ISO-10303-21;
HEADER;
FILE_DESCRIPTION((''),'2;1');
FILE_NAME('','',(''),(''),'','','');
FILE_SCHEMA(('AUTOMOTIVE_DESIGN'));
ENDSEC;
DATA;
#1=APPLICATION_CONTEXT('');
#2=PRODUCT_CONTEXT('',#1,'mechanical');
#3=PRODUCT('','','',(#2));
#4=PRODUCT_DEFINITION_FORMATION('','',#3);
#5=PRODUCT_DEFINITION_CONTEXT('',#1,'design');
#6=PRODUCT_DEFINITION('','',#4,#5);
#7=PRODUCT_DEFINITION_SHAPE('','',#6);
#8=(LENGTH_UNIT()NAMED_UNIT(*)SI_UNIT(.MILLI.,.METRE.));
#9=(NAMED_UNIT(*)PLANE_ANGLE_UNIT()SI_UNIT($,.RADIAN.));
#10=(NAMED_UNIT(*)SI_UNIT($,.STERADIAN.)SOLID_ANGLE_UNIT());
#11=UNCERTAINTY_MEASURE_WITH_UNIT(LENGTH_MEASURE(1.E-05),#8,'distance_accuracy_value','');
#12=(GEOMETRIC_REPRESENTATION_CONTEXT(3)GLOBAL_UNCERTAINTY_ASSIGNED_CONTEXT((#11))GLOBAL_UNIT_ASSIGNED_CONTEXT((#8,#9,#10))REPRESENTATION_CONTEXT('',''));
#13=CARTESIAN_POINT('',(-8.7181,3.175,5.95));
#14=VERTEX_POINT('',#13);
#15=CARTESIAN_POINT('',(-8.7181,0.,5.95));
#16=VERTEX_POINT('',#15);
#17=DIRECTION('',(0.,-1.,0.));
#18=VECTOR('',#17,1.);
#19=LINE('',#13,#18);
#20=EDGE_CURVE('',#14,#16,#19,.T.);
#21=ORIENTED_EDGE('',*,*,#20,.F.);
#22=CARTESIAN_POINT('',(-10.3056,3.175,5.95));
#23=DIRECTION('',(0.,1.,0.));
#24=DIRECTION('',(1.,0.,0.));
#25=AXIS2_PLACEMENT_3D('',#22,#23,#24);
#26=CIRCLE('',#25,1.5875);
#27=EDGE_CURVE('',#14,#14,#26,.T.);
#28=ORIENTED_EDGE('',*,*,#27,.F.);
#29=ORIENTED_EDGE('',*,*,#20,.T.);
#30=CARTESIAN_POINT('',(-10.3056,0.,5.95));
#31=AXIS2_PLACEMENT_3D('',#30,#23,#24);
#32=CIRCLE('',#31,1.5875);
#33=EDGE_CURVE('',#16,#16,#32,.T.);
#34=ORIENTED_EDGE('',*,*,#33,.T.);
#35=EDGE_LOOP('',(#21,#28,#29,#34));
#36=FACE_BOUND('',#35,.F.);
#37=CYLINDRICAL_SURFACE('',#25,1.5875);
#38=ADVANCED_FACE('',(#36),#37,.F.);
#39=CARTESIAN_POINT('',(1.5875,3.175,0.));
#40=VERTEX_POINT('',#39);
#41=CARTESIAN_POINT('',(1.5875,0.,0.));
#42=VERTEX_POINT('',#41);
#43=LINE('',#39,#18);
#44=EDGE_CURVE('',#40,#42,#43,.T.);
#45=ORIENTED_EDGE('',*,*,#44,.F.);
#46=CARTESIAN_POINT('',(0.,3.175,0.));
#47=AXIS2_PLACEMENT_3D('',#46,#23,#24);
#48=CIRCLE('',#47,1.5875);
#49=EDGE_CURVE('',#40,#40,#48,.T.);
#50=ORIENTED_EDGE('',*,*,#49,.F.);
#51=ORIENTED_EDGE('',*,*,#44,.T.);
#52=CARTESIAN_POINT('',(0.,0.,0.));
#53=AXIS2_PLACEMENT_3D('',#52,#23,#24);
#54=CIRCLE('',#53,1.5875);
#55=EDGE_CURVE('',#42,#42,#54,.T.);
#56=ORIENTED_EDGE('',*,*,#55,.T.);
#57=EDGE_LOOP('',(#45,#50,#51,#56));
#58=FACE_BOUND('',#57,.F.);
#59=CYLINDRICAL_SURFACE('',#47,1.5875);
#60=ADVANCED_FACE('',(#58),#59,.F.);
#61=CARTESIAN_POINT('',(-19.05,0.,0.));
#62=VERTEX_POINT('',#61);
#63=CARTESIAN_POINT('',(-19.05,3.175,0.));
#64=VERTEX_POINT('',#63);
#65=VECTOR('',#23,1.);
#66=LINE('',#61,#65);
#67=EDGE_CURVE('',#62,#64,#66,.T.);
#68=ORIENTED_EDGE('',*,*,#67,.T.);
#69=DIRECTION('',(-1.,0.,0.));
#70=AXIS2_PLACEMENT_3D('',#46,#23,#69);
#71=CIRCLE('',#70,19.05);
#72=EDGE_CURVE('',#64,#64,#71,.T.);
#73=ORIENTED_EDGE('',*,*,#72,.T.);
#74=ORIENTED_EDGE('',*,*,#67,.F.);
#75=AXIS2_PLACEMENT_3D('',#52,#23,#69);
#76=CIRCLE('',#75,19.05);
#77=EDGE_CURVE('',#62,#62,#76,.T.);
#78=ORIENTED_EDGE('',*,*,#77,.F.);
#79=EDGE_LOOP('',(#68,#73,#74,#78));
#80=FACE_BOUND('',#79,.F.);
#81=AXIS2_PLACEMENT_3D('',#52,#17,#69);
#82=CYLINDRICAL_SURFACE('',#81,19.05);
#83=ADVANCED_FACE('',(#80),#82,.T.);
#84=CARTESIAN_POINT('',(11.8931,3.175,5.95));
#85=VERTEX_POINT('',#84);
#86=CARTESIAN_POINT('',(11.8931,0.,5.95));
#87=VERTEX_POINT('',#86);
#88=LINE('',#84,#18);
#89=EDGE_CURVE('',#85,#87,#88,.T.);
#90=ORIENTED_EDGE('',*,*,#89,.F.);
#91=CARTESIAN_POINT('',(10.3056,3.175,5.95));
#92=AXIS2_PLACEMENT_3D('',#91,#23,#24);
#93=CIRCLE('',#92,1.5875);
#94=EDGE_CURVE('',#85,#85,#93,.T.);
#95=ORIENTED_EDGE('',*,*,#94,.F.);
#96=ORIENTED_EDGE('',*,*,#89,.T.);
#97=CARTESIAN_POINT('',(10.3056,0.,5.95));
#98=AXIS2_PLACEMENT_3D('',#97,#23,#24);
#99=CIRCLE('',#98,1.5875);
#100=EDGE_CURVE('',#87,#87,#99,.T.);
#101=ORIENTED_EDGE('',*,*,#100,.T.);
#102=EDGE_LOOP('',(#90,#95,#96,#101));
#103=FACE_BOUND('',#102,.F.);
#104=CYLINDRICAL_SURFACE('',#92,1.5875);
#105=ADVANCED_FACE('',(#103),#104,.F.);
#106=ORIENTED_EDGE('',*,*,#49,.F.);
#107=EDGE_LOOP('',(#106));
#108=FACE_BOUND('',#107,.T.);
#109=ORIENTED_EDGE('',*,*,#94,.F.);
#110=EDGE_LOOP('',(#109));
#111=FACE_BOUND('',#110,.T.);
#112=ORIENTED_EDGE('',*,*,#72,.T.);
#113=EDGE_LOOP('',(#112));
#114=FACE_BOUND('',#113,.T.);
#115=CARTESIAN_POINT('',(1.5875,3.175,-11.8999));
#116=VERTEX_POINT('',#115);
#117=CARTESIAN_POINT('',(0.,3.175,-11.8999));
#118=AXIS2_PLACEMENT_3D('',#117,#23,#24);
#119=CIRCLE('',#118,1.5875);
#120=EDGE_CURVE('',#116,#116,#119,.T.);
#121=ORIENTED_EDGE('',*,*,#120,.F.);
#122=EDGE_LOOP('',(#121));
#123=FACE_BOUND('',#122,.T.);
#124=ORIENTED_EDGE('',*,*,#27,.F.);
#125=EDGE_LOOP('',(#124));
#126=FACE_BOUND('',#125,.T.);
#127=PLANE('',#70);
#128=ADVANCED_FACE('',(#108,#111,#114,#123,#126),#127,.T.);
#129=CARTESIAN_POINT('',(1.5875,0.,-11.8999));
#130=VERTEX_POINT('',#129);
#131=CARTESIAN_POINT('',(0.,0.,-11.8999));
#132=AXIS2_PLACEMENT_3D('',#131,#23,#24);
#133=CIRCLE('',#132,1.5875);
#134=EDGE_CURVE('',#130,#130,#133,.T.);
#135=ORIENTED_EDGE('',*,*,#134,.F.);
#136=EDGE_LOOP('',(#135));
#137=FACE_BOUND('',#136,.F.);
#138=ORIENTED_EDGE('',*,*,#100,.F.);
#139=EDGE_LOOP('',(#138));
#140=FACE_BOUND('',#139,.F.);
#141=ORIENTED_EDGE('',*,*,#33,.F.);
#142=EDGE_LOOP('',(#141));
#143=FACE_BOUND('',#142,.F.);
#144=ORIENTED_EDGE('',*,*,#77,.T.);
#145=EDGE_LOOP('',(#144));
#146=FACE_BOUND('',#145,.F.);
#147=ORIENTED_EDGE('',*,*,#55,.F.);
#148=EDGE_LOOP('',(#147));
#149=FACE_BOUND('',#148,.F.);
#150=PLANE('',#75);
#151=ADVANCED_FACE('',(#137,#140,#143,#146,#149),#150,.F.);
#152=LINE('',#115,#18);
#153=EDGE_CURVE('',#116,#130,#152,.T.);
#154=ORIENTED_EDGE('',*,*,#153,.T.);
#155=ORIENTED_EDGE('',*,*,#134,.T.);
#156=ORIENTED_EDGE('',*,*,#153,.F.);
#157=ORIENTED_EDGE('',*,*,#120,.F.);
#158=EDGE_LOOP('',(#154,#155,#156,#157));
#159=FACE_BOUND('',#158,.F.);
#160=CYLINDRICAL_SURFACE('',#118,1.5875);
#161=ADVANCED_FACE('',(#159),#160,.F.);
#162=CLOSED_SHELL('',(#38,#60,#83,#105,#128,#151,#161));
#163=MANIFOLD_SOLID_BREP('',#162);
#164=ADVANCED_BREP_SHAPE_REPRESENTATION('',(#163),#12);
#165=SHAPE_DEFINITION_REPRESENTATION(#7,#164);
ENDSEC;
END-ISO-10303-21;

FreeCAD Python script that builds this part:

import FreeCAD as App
import Part
import Sketcher
Q = App.Units.Quantity

doc = App.newDocument("Part")
body = doc.addObject("PartDesign::Body", "Body")

sketch1 = doc.addObject("Sketcher::SketchObject", "Sketch")
body.addObject(sketch1)
sketch1.AttachmentSupport = (doc.XZ_Plane, [""])
sketch1.MapMode = "FlatFace"
sketch1.addGeometry(Part.Circle(App.Vector(0, 0, 0), App.Vector(0, 0, 1), 19), False)
sketch1.addConstraint([
    Sketcher.Constraint("Coincident", 0, 3, -1, 1),
    Sketcher.Constraint("Diameter", 0, Q("1.5 in")),
])
pad1 = doc.addObject("PartDesign::Pad", "Pad")
body.addObject(pad1)
pad1.Profile = sketch1
pad1.Length = Q("0.125 in")
pad1.Reversed = True

sketch2 = doc.addObject("Sketcher::SketchObject", "Sketch001")
body.addObject(sketch2)
sketch2.AttachmentSupport = (doc.XZ_Plane, [""])
sketch2.MapMode = "FlatFace"
sketch2.AttachmentOffset = App.Placement(App.Vector(0, 0, -0.125 * 25.4), App.Rotation())
sketch2.addGeometry([
    Part.Circle(App.Vector(0, 0, 0), App.Vector(0, 0, 1), 1.6),
    Part.Circle(App.Vector(-10.3, 6, 0), App.Vector(0, 0, 1), 1.6),
    Part.Circle(App.Vector(0, -11.9, 0), App.Vector(0, 0, 1), 1.6),
    Part.Circle(App.Vector(10.3, 6, 0), App.Vector(0, 0, 1), 1.6),
], False)
sketch2.addConstraint([
    Sketcher.Constraint("Coincident", 0, 3, -1, 1),
    Sketcher.Constraint("Equal", 0, 1),
    Sketcher.Constraint("Equal", 1, 2),
    Sketcher.Constraint("Equal", 2, 3),
    Sketcher.Constraint("Symmetric", 1, 3, 3, 3, -2),
    Sketcher.Constraint("PointOnObject", 2, 3, -2),
    Sketcher.Constraint("Diameter", 0, Q("0.125 in")),
    Sketcher.Constraint("DistanceY", 2, 3, -1, 1, Q("0.4685 in")),
    Sketcher.Constraint("DistanceX", 1, 3, -1, 1, 10.3056),
    Sketcher.Constraint("DistanceY", -1, 1, 1, 3, 5.95),
])
pocket1 = doc.addObject("PartDesign::Pocket", "Pocket")
body.addObject(pocket1)
pocket1.Profile = sketch2
pocket1.Length = Q("0.125 in")
pocket1.Reversed = True

doc.recompute()
